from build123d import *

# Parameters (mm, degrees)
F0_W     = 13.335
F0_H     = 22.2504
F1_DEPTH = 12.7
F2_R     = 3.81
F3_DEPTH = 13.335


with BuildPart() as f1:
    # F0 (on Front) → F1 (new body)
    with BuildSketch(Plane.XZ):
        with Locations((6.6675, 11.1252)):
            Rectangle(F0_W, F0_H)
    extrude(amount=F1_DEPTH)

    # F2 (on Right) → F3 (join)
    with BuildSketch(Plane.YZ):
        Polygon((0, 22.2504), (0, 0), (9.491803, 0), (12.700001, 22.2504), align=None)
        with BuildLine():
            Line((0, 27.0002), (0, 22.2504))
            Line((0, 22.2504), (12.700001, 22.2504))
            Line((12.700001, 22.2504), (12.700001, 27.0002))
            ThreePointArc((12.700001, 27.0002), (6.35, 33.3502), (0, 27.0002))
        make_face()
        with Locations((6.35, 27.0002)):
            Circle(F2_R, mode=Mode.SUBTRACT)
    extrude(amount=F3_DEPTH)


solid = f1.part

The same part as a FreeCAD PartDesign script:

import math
import FreeCAD as App
import Part
import Sketcher
from FreeCAD import Vector
Q = App.Units.Quantity

doc = App.newDocument("Part")
params = doc.addObject("Spreadsheet::Sheet", "Params")
for row, (alias, value) in enumerate([
    ("sketch1_width", "0.525 in"),
    ("sketch1_height", "0.876 in"),
    ("pad1_length", "0.5 in"),
    ("sketch2_diameter", "0.3 in"),
    ("sketch2_radius", "0.25 in"),
    ("sketch2_height", "0.187 in"),
    ("sketch2_height2", "1.063 in"),
    ("pad2_length", "0.525 in"),
], start=1):
    params.set(f"A{row}", alias)
    params.set(f"B{row}", "=" + value)
    params.setAlias(f"B{row}", alias)

body = doc.addObject("PartDesign::Body", "Body")

# Sketch on XZ plane
sketch1 = doc.addObject("Sketcher::SketchObject", "Sketch")
body.addObject(sketch1)
sketch1.AttachmentSupport = (doc.XZ_Plane, [""])
sketch1.MapMode = "FlatFace"
sketch1.addGeometry([
    Part.LineSegment(Vector(0, 22, 0), Vector(0, 0, 0)),
    Part.LineSegment(Vector(0, 0, 0), Vector(13, 0, 0)),
    Part.LineSegment(Vector(13, 0, 0), Vector(13, 22, 0)),
    Part.LineSegment(Vector(13, 22, 0), Vector(0, 22, 0)),
], False)
sketch1.addConstraint([
    Sketcher.Constraint("Coincident", 0, 2, 1, 1),
    Sketcher.Constraint("Coincident", 1, 2, 2, 1),
    Sketcher.Constraint("Coincident", 2, 2, 3, 1),
    Sketcher.Constraint("Coincident", 3, 2, 0, 1),
    Sketcher.Constraint("Vertical", 0),
    Sketcher.Constraint("Horizontal", 1),
    Sketcher.Constraint("Vertical", 2),
    Sketcher.Constraint("Horizontal", 3),
    Sketcher.Constraint("Coincident", 0, 2, -1, 1),
    Sketcher.Constraint("DistanceX", 1, 1, 1, 2, Q("0.525 in")),
    Sketcher.Constraint("DistanceY", 0, 2, 0, 1, Q("0.876 in")),
])
sketch1.setExpression("Constraints[9]", "Params.sketch1_width")
sketch1.setExpression("Constraints[10]", "Params.sketch1_height")
pad1 = doc.addObject("PartDesign::Pad", "Pad")
body.addObject(pad1)
pad1.Profile = sketch1
pad1.setExpression("Length", "Params.pad1_length")

# Sketch on YZ plane
sketch2 = doc.addObject("Sketcher::SketchObject", "Sketch001")
body.addObject(sketch2)
sketch2.AttachmentSupport = (doc.YZ_Plane, [""])
sketch2.MapMode = "FlatFace"
sketch2.addGeometry([
    Part.LineSegment(Vector(0, 0, 0), Vector(9.5, 0, 0)),  # 0
    Part.LineSegment(Vector(9.5, 0, 0), Vector(12.7, 22.3, 0)),  # 1
    Part.LineSegment(Vector(12.7, 22.3, 0), Vector(12.7, 27, 0)),  # 2
    Part.ArcOfCircle(Part.Circle(Vector(6.4, 27, 0), Vector(0, 0, 1), 6.4), math.radians(0), math.radians(180)),  # 3
    Part.LineSegment(Vector(0, 27, 0), Vector(0, 0, 0)),  # 4
    Part.Circle(Vector(6.3, 27, 0), Vector(0, 0, 1), 3.8),  # 5
], False)
sketch2.addConstraint([
    Sketcher.Constraint("Coincident", 0, 2, 1, 1),
    Sketcher.Constraint("Coincident", 1, 2, 2, 1),
    Sketcher.Constraint("Tangent", 2, 2, 3, 1),
    Sketcher.Constraint("Tangent", 3, 2, 4, 1),
    Sketcher.Constraint("Coincident", 4, 2, 0, 1),
    Sketcher.Constraint("Horizontal", 0),
    Sketcher.Constraint("Vertical", 2),
    Sketcher.Constraint("Vertical", 4),
    Sketcher.Constraint("Coincident", 4, 2, -1, 1),
    Sketcher.Constraint("Coincident", 5, 3, 3, 3),
    Sketcher.Constraint("Diameter", 5, Q("0.3 in")),
    Sketcher.Constraint("Radius", 3, Q("0.25 in")),
    Sketcher.Constraint("DistanceY", 2, 1, 2, 2, Q("0.187 in")),
    Sketcher.Constraint("DistanceY", 4, 2, 4, 1, Q("1.063 in")),
    Sketcher.Constraint("Distance", 1, 22.480499),
])
sketch2.setExpression("Constraints[10]", "Params.sketch2_diameter")
sketch2.setExpression("Constraints[11]", "Params.sketch2_radius")
sketch2.setExpression("Constraints[12]", "Params.sketch2_height")
sketch2.setExpression("Constraints[13]", "Params.sketch2_height2")
pad2 = doc.addObject("PartDesign::Pad", "Pad001")
body.addObject(pad2)
pad2.Profile = sketch2
pad2.setExpression("Length", "Params.pad2_length")

doc.recompute()
